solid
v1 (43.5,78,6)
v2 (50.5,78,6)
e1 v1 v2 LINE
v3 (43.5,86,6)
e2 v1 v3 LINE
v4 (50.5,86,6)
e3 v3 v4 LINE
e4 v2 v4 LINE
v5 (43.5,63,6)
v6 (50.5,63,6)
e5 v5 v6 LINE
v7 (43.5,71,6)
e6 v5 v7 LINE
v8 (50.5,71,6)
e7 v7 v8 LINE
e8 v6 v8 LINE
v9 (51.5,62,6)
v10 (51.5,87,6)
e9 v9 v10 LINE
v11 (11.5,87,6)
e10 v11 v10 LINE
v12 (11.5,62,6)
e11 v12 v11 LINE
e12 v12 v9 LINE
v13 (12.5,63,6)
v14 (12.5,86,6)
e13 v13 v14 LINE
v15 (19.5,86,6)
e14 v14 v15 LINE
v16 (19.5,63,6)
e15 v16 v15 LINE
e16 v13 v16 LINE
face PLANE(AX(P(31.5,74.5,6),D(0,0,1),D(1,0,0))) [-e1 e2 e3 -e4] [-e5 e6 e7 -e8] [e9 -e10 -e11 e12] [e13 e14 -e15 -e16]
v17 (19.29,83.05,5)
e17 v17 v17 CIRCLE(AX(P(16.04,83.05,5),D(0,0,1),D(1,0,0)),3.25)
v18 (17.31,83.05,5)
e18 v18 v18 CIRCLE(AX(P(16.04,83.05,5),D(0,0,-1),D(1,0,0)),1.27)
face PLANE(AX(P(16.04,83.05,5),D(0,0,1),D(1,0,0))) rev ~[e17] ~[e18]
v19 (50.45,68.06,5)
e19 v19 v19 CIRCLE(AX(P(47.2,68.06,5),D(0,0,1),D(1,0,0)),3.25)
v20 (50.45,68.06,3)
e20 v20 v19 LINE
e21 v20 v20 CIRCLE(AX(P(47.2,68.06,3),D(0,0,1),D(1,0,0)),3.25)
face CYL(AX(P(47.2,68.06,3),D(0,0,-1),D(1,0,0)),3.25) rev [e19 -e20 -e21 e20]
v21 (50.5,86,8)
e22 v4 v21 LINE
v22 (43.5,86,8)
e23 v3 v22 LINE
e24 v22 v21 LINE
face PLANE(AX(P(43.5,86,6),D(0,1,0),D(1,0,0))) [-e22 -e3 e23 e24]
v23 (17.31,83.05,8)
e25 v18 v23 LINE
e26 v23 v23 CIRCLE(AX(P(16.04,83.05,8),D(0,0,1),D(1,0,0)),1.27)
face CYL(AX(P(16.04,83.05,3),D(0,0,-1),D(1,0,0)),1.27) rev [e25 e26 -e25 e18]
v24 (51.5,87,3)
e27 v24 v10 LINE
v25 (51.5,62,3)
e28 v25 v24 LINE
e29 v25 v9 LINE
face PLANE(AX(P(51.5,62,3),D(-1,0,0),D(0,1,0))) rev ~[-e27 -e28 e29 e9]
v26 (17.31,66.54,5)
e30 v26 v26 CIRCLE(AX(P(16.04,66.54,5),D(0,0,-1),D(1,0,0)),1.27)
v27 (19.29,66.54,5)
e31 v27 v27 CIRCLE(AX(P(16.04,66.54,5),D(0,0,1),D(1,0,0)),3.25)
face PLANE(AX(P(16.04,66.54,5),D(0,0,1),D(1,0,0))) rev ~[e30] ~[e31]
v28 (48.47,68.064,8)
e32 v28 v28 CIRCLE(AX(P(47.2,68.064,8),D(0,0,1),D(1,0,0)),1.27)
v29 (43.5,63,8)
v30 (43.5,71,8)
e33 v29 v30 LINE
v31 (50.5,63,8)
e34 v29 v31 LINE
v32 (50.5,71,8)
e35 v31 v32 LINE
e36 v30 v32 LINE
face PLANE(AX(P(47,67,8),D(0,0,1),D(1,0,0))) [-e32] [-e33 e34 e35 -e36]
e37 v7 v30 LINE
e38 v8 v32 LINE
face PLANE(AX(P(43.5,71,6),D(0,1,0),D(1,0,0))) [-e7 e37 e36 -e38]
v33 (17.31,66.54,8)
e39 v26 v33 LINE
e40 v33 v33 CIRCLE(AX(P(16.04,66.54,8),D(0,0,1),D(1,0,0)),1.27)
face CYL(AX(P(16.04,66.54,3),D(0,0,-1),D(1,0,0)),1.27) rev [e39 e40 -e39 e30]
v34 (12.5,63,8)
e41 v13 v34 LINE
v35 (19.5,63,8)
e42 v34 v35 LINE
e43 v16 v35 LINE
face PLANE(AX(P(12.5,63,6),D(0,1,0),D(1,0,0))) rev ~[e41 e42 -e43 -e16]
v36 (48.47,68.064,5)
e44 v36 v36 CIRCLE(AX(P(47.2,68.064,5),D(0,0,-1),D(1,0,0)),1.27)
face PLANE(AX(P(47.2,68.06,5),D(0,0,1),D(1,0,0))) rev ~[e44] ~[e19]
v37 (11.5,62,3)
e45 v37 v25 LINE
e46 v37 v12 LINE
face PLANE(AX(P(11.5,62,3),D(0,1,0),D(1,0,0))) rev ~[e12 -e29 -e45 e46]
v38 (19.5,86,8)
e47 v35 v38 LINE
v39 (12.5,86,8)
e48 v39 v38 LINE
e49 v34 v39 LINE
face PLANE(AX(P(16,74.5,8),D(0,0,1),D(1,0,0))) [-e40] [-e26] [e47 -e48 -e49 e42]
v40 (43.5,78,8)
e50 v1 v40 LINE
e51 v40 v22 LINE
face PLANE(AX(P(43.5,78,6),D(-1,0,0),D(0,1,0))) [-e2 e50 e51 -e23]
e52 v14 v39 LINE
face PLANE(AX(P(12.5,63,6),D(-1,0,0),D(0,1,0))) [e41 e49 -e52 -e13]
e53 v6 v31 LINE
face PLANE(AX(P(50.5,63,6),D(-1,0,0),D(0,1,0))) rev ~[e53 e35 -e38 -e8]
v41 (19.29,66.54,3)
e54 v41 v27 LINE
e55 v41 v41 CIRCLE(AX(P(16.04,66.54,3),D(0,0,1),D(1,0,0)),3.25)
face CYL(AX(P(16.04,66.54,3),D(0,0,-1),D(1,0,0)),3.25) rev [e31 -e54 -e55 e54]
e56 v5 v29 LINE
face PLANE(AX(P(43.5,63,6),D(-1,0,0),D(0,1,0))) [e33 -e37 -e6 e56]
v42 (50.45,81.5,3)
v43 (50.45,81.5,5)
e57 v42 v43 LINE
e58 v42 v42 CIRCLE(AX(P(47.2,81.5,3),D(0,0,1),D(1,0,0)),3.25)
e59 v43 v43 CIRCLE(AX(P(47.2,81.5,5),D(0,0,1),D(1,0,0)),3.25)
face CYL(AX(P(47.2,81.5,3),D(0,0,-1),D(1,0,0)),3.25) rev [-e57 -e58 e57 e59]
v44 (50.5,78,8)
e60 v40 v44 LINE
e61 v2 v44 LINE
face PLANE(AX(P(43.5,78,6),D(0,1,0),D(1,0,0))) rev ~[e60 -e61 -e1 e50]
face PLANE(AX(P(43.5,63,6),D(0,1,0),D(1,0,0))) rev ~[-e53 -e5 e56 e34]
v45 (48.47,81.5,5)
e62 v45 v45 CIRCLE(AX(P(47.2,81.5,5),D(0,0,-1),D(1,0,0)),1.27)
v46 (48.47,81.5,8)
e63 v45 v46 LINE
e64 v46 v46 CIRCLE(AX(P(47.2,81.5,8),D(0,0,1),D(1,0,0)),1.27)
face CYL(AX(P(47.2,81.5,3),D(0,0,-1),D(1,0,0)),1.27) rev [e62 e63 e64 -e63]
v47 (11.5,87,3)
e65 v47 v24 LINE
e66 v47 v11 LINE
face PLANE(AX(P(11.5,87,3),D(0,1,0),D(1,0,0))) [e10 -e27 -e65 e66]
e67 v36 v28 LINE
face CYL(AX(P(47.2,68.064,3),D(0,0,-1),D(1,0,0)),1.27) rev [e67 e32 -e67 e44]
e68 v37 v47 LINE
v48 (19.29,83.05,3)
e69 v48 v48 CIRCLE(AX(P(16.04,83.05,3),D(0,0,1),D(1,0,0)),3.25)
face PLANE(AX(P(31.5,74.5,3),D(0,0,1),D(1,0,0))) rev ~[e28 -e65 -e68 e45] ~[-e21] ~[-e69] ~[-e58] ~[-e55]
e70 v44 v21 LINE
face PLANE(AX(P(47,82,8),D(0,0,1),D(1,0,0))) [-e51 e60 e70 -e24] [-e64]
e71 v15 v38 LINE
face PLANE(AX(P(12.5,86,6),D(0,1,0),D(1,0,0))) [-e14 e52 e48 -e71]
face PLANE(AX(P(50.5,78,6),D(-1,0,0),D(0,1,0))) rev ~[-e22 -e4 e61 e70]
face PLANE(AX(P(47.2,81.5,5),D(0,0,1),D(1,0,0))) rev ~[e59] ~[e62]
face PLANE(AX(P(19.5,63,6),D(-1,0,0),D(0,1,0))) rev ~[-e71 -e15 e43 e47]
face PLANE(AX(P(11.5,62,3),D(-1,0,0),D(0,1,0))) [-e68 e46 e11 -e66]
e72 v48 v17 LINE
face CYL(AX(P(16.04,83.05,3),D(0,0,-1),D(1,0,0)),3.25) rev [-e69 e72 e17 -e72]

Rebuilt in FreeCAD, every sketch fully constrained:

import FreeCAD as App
import Part
import Sketcher


def add_polygon(sketch, points):
    """Adds a closed chain of lines whose ends are joined by coincident constraints."""
    first, n = sketch.GeometryCount, len(points)
    for a, b in zip(points, points[1:] + points[:1]):
        sketch.addGeometry(Part.LineSegment(App.Vector(*a, 0), App.Vector(*b, 0)), False)
    for i in range(n):
        sketch.addConstraint(Sketcher.Constraint("Coincident", first + i, 2, first + (i + 1) % n, 1))

doc = App.newDocument("Part")
body = doc.addObject("PartDesign::Body", "Body")

sketch1 = body.newObject("Sketcher::SketchObject", "Sketch")
sketch1.AttachmentSupport = (doc.getObject("XY_Plane"), [""])
sketch1.MapMode = "FlatFace"
sketch1.addGeometry(Part.Circle(App.Vector(3.5, 3.5, 0), App.Vector(0, 0, 1), 3.2), False)
sketch1.addConstraint([
    Sketcher.Constraint("Diameter", 0, 6.5),
    Sketcher.Constraint("DistanceX", -1, 1, 0, 3, 3.54),
    Sketcher.Constraint("DistanceY", -1, 1, 0, 3, 3.54),
])
pad1 = body.newObject("PartDesign::Pad", "Pad")
pad1.Profile = sketch1
pad1.Length = 2
body2 = doc.addObject("PartDesign::Body", "Body001")

sketch2 = body2.newObject("Sketcher::SketchObject", "Sketch001")
sketch2.AttachmentSupport = (doc.getObject("XY_Plane001"), [""])
sketch2.MapMode = "FlatFace"
sketch2.addGeometry(Part.Circle(App.Vector(34.7, 18.5, 0), App.Vector(0, 0, 1), 3.2), False)
sketch2.addConstraint([
    Sketcher.Constraint("Diameter", 0, 6.5),
    Sketcher.Constraint("DistanceX", -1, 1, 0, 3, 34.7),
    Sketcher.Constraint("DistanceY", -1, 1, 0, 3, 18.5),
])
pad2 = body2.newObject("PartDesign::Pad", "Pad001")
pad2.Profile = sketch2
pad2.Length = 2
body3 = doc.addObject("PartDesign::Body", "Body002")

sketch3 = body3.newObject("Sketcher::SketchObject", "Sketch002")
sketch3.AttachmentSupport = (doc.getObject("XY_Plane002"), [""])
sketch3.MapMode = "FlatFace"
sketch3.addGeometry(Part.Circle(App.Vector(34.7, 5.1, 0), App.Vector(0, 0, 1), 3.2), False)
sketch3.addConstraint([
    Sketcher.Constraint("Diameter", 0, 6.5),
    Sketcher.Constraint("DistanceX", -1, 1, 0, 3, 34.7),
    Sketcher.Constraint("DistanceY", -1, 1, 0, 3, 5.06),
])
pad3 = body3.newObject("PartDesign::Pad", "Pad002")
pad3.Profile = sketch3
pad3.Length = 2
body4 = doc.addObject("PartDesign::Body", "Body003")
body4.AllowCompound = True

sketch4 = body4.newObject("Sketcher::SketchObject", "Sketch003")
sketch4.AttachmentSupport = (doc.getObject("XY_Plane003"), [""])
sketch4.MapMode = "FlatFace"
sketch4.addGeometry(Part.Circle(App.Vector(3.5, 20.1, 0), App.Vector(0, 0, 1), 3.2), False)
sketch4.addConstraint([
    Sketcher.Constraint("Diameter", 0, 6.5),
    Sketcher.Constraint("DistanceX", -1, 1, 0, 3, 3.54),
    Sketcher.Constraint("DistanceY", -1, 1, 0, 3, 20.05),
])
pad4 = body4.newObject("PartDesign::Pad", "Pad003")
pad4.Profile = sketch4
pad4.Length = 2
doc.recompute()

boolean = body4.newObject("PartDesign::Boolean", "Boolean")
boolean.Type = "Fuse"
boolean.addObjects([body])
doc.recompute()

boolean2 = body4.newObject("PartDesign::Boolean", "Boolean001")
boolean2.Type = "Fuse"
boolean2.addObjects([body2])
doc.recompute()

boolean3 = body4.newObject("PartDesign::Boolean", "Boolean002")
boolean3.Type = "Fuse"
boolean3.addObjects([body3])
body5 = doc.addObject("PartDesign::Body", "Body004")

sketch5 = body5.newObject("Sketcher::SketchObject", "Sketch004")
sketch5.AttachmentSupport = (doc.getObject("XY_Plane004"), [""])
sketch5.MapMode = "FlatFace"
sketch5.addGeometry(Part.Circle(App.Vector(2.5, 19.1, 0), App.Vector(0, 0, 1), 1.3), False)
sketch5.addConstraint([
    Sketcher.Constraint("Diameter", 0, 2.54),
    Sketcher.Constraint("DistanceX", -1, 1, 0, 3, 2.54),
    Sketcher.Constraint("DistanceY", -1, 1, 0, 3, 19.05),
])
pad5 = body5.newObject("PartDesign::Pad", "Pad004")
pad5.Profile = sketch5
pad5.Length = 5
body6 = doc.addObject("PartDesign::Body", "Body005")

sketch6 = body6.newObject("Sketcher::SketchObject", "Sketch005")
sketch6.AttachmentSupport = (doc.getObject("XY_Plane005"), [""])
sketch6.MapMode = "FlatFace"
sketch6.addGeometry(Part.Circle(App.Vector(33.7, 17.5, 0), App.Vector(0, 0, 1), 1.3), False)
sketch6.addConstraint([
    Sketcher.Constraint("Diameter", 0, 2.54),
    Sketcher.Constraint("DistanceX", -1, 1, 0, 3, 33.7),
    Sketcher.Constraint("DistanceY", -1, 1, 0, 3, 17.5),
])
pad6 = body6.newObject("PartDesign::Pad", "Pad005")
pad6.Profile = sketch6
pad6.Length = 5
body7 = doc.addObject("PartDesign::Body", "Body006")

sketch7 = body7.newObject("Sketcher::SketchObject", "Sketch006")
sketch7.AttachmentSupport = (doc.getObject("XY_Plane006"), [""])
sketch7.MapMode = "FlatFace"
sketch7.addGeometry(Part.Circle(App.Vector(33.7, 4.1, 0), App.Vector(0, 0, 1), 1.3), False)
sketch7.addConstraint([
    Sketcher.Constraint("Diameter", 0, 2.54),
    Sketcher.Constraint("DistanceX", -1, 1, 0, 3, 33.7),
    Sketcher.Constraint("DistanceY", -1, 1, 0, 3, 4.064),
])
pad7 = body7.newObject("PartDesign::Pad", "Pad006")
pad7.Profile = sketch7
pad7.Length = 5
body8 = doc.addObject("PartDesign::Body", "Body007")
body8.AllowCompound = True

sketch8 = body8.newObject("Sketcher::SketchObject", "Sketch007")
sketch8.AttachmentSupport = (doc.getObject("XY_Plane007"), [""])
sketch8.MapMode = "FlatFace"
sketch8.addGeometry(Part.Circle(App.Vector(2.5, 2.5, 0), App.Vector(0, 0, 1), 1.3), False)
sketch8.addConstraint([
    Sketcher.Constraint("Diameter", 0, 2.54),
    Sketcher.Constraint("DistanceX", -1, 1, 0, 3, 2.54),
    Sketcher.Constraint("DistanceY", -1, 1, 0, 3, 2.54),
])
pad8 = body8.newObject("PartDesign::Pad", "Pad007")
pad8.Profile = sketch8
pad8.Length = 5
doc.recompute()

boolean4 = body8.newObject("PartDesign::Boolean", "Boolean003")
boolean4.Type = "Fuse"
boolean4.addObjects([body5])
doc.recompute()

boolean5 = body8.newObject("PartDesign::Boolean", "Boolean004")
boolean5.Type = "Fuse"
boolean5.addObjects([body6])
doc.recompute()

boolean6 = body8.newObject("PartDesign::Boolean", "Boolean005")
boolean6.Type = "Fuse"
boolean6.addObjects([body7])
body9 = doc.addObject("PartDesign::Body", "Body008")
body9.AllowCompound = True
doc.recompute()

body8.Placement = App.Placement(App.Vector(1, 1, 0), App.Rotation(App.Vector(0, 0, 1), 0))
boolean7 = body9.newObject("PartDesign::Boolean", "Boolean006")
boolean7.Type = "Fuse"
boolean7.addObjects([body8])
doc.recompute()

boolean8 = body9.newObject("PartDesign::Boolean", "Boolean007")
boolean8.Type = "Fuse"
boolean8.addObjects([body4])
body10 = doc.addObject("PartDesign::Body", "Body009")

sketch9 = body10.newObject("Sketcher::SketchObject", "Sketch008")
sketch9.AttachmentSupport = (doc.getObject("XY_Plane009"), [""])
sketch9.MapMode = "FlatFace"
sketch9.AttachmentOffset = App.Placement(App.Vector(0, 0, 3), App.Rotation())
add_polygon(sketch9, [(31, 23), (31, 15), (38, 15), (38, 23)])
sketch9.addConstraint([
    Sketcher.Constraint("Vertical", 0),
    Sketcher.Constraint("Horizontal", 1),
    Sketcher.Constraint("Vertical", 2),
    Sketcher.Constraint("Horizontal", 3),
    Sketcher.Constraint("DistanceX", 1, 1, 1, 2, 7.0),
    Sketcher.Constraint("DistanceY", 0, 2, 0, 1, 8.0),
    Sketcher.Constraint("DistanceX", -1, 1, 0, 2, 31.0),
    Sketcher.Constraint("DistanceY", -1, 1, 0, 2, 15.0),
])
pad9 = body10.newObject("PartDesign::Pad", "Pad008")
pad9.Profile = sketch9
pad9.Length = 2
body11 = doc.addObject("PartDesign::Body", "Body010")

sketch10 = body11.newObject("Sketcher::SketchObject", "Sketch009")
sketch10.AttachmentSupport = (doc.getObject("XY_Plane010"), [""])
sketch10.MapMode = "FlatFace"
sketch10.AttachmentOffset = App.Placement(App.Vector(0, 0, 3), App.Rotation())
add_polygon(sketch10, [(31, 8), (31, 0), (38, 0), (38, 8)])
sketch10.addConstraint([
    Sketcher.Constraint("Vertical", 0),
    Sketcher.Constraint("Horizontal", 1),
    Sketcher.Constraint("Vertical", 2),
    Sketcher.Constraint("Horizontal", 3),
    Sketcher.Constraint("PointOnObject", 0, 2, -1),
    Sketcher.Constraint("DistanceX", 1, 1, 1, 2, 7.0),
    Sketcher.Constraint("DistanceY", 0, 2, 0, 1, 8.0),
    Sketcher.Constraint("DistanceX", -1, 1, 0, 2, 31.0),
])
pad10 = body11.newObject("PartDesign::Pad", "Pad009")
pad10.Profile = sketch10
pad10.Length = 2
body12 = doc.addObject("PartDesign::Body", "Body011")
body12.AllowCompound = True

sketch11 = body12.newObject("Sketcher::SketchObject", "Sketch010")
sketch11.AttachmentSupport = (doc.getObject("XY_Plane011"), [""])
sketch11.MapMode = "FlatFace"
sketch11.AttachmentOffset = App.Placement(App.Vector(0, 0, 3), App.Rotation())
add_polygon(sketch11, [(0, 23), (0, 0), (7, 0), (7, 23)])
sketch11.addConstraint([
    Sketcher.Constraint("Vertical", 0),
    Sketcher.Constraint("Horizontal", 1),
    Sketcher.Constraint("Vertical", 2),
    Sketcher.Constraint("Horizontal", 3),
    Sketcher.Constraint("Coincident", 0, 2, -1, 1),
    Sketcher.Constraint("DistanceX", 1, 1, 1, 2, 7.0),
    Sketcher.Constraint("DistanceY", 0, 2, 0, 1, 23.0),
])
pad11 = body12.newObject("PartDesign::Pad", "Pad010")
pad11.Profile = sketch11
pad11.Length = 2
doc.recompute()

boolean9 = body12.newObject("PartDesign::Boolean", "Boolean008")
boolean9.Type = "Fuse"
boolean9.addObjects([body10])
doc.recompute()

boolean10 = body12.newObject("PartDesign::Boolean", "Boolean009")
boolean10.Type = "Fuse"
boolean10.addObjects([body11])
body13 = doc.addObject("PartDesign::Body", "Body012")

sketch12 = body13.newObject("Sketcher::SketchObject", "Sketch011")
sketch12.AttachmentSupport = (doc.getObject("XY_Plane012"), [""])
sketch12.MapMode = "FlatFace"
add_polygon(sketch12, [(-1, 24), (-1, -1), (39, -1), (39, 24)])
sketch12.addConstraint([
    Sketcher.Constraint("Vertical", 0),
    Sketcher.Constraint("Horizontal", 1),
    Sketcher.Constraint("Vertical", 2),
    Sketcher.Constraint("Horizontal", 3),
    Sketcher.Constraint("DistanceX", 1, 1, 1, 2, 40.0),
    Sketcher.Constraint("DistanceY", 0, 2, 0, 1, 25.0),
    Sketcher.Constraint("DistanceX", 0, 2, -1, 1, 1.0),
    Sketcher.Constraint("DistanceY", 0, 2, -1, 1, 1.0),
])
pad12 = body13.newObject("PartDesign::Pad", "Pad011")
pad12.Profile = sketch12
pad12.Length = 3
doc.recompute()

boolean11 = body13.newObject("PartDesign::Boolean", "Boolean010")
boolean11.Type = "Fuse"
boolean11.addObjects([body12])
doc.recompute()

boolean12 = body13.newObject("PartDesign::Boolean", "Boolean011")
boolean12.Type = "Cut"
boolean12.addObjects([body9])
body14 = doc.addObject("PartDesign::Body", "Body013")
doc.recompute()

body13.Placement = App.Placement(App.Vector(12.5, 63, 3), App.Rotation(App.Vector(0, 0, 1), 0))
boolean13 = body14.newObject("PartDesign::Boolean", "Boolean012")
boolean13.Type = "Fuse"
boolean13.addObjects([body13])

doc.recompute()
